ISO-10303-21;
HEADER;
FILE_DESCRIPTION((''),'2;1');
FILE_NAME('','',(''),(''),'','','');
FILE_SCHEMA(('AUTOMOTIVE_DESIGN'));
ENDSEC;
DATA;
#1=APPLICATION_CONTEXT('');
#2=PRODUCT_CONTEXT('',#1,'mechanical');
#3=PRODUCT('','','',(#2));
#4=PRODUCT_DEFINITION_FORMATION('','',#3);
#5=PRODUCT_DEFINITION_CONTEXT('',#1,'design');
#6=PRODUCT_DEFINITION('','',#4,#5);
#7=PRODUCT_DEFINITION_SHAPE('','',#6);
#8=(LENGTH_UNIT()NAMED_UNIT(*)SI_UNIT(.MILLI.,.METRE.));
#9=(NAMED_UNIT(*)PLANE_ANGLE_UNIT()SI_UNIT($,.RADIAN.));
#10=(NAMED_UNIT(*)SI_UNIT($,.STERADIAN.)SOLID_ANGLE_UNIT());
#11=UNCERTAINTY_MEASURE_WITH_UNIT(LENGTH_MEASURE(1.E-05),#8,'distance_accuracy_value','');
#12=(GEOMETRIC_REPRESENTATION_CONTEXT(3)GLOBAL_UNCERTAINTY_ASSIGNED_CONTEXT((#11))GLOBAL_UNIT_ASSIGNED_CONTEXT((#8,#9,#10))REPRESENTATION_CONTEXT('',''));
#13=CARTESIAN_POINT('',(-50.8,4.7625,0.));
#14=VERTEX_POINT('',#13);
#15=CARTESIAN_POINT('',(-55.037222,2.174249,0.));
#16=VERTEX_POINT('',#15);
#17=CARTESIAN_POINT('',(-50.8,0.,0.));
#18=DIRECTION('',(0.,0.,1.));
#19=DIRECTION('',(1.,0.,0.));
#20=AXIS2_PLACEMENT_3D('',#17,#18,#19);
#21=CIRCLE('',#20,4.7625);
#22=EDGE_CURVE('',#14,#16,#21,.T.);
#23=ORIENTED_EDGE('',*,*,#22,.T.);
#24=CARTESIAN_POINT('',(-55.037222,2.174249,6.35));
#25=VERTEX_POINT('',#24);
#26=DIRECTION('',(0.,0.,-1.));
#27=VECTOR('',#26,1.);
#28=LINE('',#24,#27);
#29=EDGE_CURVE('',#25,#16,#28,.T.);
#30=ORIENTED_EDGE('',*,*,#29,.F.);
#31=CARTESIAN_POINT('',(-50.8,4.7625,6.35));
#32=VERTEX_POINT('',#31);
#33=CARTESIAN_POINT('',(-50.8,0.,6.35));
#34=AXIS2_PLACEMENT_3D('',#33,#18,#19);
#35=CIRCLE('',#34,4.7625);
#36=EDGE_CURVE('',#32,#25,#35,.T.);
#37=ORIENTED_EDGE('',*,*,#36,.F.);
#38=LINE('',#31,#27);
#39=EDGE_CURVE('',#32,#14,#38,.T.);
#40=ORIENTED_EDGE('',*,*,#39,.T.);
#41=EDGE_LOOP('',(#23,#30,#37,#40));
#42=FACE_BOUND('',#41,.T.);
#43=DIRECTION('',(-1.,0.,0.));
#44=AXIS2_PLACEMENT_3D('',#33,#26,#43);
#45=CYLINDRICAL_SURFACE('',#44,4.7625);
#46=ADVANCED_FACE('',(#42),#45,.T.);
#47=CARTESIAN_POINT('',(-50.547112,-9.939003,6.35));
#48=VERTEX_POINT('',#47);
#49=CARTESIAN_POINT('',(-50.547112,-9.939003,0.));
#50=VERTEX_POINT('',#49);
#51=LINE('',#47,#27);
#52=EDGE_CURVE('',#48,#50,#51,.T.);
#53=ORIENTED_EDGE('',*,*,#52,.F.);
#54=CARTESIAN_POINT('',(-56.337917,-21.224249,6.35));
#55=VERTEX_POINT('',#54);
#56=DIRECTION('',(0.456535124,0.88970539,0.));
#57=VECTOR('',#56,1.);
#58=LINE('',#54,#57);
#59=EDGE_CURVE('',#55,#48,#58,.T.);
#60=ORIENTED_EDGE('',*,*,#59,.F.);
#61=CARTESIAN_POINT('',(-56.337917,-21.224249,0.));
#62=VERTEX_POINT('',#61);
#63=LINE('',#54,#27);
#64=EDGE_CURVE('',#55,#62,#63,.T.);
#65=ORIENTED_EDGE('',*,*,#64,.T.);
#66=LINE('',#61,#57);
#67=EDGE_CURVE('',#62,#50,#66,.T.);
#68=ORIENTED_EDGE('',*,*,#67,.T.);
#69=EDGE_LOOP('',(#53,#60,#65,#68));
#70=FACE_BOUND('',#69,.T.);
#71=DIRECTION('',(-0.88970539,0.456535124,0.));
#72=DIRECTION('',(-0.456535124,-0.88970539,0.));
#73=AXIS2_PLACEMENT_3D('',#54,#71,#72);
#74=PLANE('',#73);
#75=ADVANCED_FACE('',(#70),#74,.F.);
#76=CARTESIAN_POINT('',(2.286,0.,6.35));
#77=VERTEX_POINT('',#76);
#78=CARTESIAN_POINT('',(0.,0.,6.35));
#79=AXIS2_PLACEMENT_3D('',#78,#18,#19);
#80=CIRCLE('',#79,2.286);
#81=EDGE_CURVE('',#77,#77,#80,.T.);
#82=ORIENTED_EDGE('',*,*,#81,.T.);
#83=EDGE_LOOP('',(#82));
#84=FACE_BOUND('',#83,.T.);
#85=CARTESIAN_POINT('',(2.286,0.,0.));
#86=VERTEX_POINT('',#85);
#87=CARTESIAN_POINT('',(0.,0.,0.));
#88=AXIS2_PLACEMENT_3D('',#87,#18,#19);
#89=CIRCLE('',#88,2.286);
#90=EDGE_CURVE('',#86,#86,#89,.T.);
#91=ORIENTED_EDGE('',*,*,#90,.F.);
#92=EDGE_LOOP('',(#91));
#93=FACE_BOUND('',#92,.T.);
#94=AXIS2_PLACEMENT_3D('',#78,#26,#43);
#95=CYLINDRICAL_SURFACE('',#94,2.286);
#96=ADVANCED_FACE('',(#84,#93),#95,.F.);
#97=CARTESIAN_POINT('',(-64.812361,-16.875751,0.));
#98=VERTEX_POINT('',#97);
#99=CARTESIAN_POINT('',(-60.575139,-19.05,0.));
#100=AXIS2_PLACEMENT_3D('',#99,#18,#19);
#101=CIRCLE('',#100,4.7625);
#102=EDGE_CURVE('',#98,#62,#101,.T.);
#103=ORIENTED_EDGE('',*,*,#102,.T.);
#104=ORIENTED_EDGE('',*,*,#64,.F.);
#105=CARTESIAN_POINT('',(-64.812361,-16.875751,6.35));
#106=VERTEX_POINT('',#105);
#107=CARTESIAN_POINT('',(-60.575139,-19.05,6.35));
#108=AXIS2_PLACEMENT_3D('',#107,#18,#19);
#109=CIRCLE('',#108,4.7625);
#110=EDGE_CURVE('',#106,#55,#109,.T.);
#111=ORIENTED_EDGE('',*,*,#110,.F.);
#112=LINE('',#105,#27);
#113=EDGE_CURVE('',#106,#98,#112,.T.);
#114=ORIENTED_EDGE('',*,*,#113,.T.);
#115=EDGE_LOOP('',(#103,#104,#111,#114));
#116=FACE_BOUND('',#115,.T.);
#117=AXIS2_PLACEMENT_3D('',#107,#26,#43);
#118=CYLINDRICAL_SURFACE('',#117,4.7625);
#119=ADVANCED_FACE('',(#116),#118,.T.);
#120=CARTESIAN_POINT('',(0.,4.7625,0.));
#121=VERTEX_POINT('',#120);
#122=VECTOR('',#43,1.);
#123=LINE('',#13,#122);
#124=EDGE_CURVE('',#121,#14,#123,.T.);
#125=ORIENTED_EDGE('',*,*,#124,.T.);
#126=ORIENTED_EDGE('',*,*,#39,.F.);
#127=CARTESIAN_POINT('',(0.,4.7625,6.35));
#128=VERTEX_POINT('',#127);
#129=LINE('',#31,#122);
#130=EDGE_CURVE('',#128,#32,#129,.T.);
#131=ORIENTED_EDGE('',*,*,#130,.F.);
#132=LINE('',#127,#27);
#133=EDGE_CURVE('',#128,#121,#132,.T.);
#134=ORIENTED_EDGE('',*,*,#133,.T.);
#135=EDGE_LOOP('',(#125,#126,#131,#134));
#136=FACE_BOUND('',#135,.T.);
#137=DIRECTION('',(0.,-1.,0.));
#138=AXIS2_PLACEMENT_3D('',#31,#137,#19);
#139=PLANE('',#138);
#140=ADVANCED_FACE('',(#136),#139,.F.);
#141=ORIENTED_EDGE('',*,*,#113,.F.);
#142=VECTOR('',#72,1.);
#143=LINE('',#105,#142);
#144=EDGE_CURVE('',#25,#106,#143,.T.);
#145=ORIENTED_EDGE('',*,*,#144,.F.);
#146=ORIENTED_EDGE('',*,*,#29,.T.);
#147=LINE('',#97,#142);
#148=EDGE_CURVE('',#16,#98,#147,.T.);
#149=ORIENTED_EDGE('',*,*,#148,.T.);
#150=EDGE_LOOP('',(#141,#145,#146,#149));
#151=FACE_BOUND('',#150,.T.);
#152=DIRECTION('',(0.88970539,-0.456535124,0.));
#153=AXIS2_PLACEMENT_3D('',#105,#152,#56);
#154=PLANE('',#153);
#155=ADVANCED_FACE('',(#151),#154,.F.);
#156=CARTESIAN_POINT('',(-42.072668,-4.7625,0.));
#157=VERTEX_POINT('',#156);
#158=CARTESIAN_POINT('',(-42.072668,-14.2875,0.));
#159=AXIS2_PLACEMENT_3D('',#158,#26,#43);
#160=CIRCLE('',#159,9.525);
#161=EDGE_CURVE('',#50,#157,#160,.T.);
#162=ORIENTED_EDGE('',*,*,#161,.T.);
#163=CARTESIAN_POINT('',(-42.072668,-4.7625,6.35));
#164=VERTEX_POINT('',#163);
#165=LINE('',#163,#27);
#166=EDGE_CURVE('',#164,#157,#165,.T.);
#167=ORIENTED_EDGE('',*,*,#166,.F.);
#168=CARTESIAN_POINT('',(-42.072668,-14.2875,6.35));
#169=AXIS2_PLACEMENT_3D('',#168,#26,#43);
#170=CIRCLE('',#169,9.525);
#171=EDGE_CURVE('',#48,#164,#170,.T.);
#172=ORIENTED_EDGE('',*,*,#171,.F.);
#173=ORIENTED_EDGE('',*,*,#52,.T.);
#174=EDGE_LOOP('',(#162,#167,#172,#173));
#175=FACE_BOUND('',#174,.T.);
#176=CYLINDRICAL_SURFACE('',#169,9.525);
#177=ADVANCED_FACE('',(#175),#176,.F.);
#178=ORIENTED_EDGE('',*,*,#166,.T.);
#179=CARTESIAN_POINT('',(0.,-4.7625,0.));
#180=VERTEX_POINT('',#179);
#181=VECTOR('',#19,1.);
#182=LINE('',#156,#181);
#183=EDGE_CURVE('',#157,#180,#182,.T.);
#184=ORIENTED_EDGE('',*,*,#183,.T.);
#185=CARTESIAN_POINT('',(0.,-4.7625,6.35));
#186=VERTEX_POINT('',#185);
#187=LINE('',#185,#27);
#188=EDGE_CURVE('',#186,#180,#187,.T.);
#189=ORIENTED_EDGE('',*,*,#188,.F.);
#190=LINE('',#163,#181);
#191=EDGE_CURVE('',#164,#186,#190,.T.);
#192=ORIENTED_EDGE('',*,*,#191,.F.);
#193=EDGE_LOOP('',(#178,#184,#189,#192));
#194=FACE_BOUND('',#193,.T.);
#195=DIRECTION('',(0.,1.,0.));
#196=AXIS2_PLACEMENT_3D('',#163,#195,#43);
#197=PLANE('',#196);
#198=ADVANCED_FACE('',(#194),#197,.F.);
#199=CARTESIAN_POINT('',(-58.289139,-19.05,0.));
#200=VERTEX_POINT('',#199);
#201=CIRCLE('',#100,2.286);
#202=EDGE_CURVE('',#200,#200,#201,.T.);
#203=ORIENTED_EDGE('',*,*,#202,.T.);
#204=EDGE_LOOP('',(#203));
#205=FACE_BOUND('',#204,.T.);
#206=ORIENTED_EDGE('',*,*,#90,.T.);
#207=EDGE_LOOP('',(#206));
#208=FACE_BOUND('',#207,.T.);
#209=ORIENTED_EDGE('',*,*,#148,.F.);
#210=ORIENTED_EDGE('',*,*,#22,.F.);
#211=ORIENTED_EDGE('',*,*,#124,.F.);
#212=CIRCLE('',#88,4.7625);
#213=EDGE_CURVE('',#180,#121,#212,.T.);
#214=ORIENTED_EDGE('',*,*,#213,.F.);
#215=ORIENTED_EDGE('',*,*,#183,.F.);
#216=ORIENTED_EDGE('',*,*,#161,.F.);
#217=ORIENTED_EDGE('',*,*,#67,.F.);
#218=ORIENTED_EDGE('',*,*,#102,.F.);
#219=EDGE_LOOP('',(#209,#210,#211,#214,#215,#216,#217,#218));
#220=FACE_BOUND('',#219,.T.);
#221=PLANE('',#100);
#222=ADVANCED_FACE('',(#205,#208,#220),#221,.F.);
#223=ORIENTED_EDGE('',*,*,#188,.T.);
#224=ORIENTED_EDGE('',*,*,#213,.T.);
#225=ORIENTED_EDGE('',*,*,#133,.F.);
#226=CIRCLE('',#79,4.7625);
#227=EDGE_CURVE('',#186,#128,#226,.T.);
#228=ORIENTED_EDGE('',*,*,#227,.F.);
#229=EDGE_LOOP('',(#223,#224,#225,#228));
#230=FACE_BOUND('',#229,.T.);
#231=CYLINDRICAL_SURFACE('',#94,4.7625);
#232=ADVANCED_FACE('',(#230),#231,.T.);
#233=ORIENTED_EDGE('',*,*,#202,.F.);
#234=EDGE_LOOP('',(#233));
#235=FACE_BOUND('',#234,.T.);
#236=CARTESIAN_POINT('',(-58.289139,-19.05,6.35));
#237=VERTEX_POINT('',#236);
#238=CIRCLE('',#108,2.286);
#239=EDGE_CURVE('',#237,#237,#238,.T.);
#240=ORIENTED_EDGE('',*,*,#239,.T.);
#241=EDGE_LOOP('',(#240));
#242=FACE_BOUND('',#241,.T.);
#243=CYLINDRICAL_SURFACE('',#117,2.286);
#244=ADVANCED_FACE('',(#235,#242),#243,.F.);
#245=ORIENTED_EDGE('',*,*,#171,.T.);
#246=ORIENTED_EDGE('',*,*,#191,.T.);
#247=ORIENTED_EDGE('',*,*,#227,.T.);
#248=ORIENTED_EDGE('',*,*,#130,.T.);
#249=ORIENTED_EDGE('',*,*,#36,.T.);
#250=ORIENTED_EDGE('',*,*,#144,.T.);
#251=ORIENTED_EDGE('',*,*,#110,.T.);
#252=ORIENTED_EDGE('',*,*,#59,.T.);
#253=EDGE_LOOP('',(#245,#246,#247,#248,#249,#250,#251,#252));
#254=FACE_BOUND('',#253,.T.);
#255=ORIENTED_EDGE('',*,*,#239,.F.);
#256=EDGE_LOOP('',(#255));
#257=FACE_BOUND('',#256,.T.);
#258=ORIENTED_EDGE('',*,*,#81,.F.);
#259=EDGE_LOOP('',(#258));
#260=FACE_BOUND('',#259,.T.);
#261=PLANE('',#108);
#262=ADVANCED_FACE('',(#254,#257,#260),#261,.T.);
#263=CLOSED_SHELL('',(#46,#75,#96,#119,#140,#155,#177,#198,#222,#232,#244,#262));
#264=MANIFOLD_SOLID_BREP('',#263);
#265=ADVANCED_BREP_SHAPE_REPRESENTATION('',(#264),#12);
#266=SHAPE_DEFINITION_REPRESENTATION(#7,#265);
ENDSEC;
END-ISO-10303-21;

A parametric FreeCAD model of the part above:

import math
import FreeCAD as App
import Part
import Sketcher

V = App.Vector
Q = App.Units.Quantity

doc = App.newDocument("Part")
body = doc.addObject("PartDesign::Body", "Body")

sketch1 = body.newObject("Sketcher::SketchObject", "Sketch")
sketch1.AttachmentSupport = (doc.getObject("XY_Plane"), [""])
sketch1.MapMode = "FlatFace"
sketch1.addGeometry(Part.LineSegment(V(-55, 2.2, 0), V(-64.8, -16.9, 0)), False)
sketch1.addGeometry(Part.ArcOfCircle(Part.Circle(V(-60.6, -19.1, 0), V(0, 0, 1), 4.8), math.radians(153), math.radians(333)), False)
sketch1.addGeometry(Part.LineSegment(V(-56.3, -21.2, 0), V(-50.5, -9.9, 0)), False)
sketch1.addGeometry(Part.ArcOfCircle(Part.Circle(V(-42.1, -14.3, 0), V(0, 0, 1), 9.5), math.radians(90), math.radians(153)), False)
sketch1.addGeometry(Part.LineSegment(V(-42.1, -4.8, 0), V(0, -4.8, 0)), False)
sketch1.addGeometry(Part.ArcOfCircle(Part.Circle(V(0, 0, 0), V(0, 0, 1), 4.8), math.radians(-90), math.radians(90)), False)
sketch1.addGeometry(Part.LineSegment(V(0, 4.8, 0), V(-50.8, 4.8, 0)), False)
sketch1.addGeometry(Part.ArcOfCircle(Part.Circle(V(-50.8, 0, 0), V(0, 0, 1), 4.8), math.radians(90), math.radians(153)), False)
sketch1.addGeometry(Part.Circle(V(-60.6, -19.1, 0), V(0, 0, 1), 2.3), False)
sketch1.addGeometry(Part.Circle(V(0, 0, 0), V(0, 0, 1), 2.3), False)
sketch1.addConstraint(Sketcher.Constraint("Tangent", 0, 2, 1, 1))
sketch1.addConstraint(Sketcher.Constraint("Tangent", 1, 2, 2, 1))
sketch1.addConstraint(Sketcher.Constraint("Tangent", 2, 2, 3, 2))
sketch1.addConstraint(Sketcher.Constraint("Tangent", 3, 1, 4, 1))
sketch1.addConstraint(Sketcher.Constraint("Tangent", 4, 2, 5, 1))
sketch1.addConstraint(Sketcher.Constraint("Tangent", 5, 2, 6, 1))
sketch1.addConstraint(Sketcher.Constraint("Tangent", 6, 2, 7, 1))
sketch1.addConstraint(Sketcher.Constraint("Tangent", 7, 2, 0, 1))
sketch1.addConstraint(Sketcher.Constraint("Horizontal", 4))
sketch1.addConstraint(Sketcher.Constraint("Horizontal", 6))
sketch1.addConstraint(Sketcher.Constraint("Coincident", 5, 3, -1, 1))
sketch1.addConstraint(Sketcher.Constraint("Coincident", 9, 3, -1, 1))
sketch1.addConstraint(Sketcher.Constraint("Coincident", 8, 3, 1, 3))
sketch1.addConstraint(Sketcher.Constraint("Equal", 1, 5))
sketch1.addConstraint(Sketcher.Constraint("Equal", 5, 7))
sketch1.addConstraint(Sketcher.Constraint("Equal", 8, 9))
sketch1.addConstraint(Sketcher.Constraint("Parallel", 0, 2))
sketch1.addConstraint(Sketcher.Constraint("Diameter", 8, Q("0.18 in")))
sketch1.addConstraint(Sketcher.Constraint("DistanceX", 6, 2, 6, 1, Q("2 in")))
sketch1.addConstraint(Sketcher.Constraint("Radius", 1, Q("0.1875 in")))
sketch1.addConstraint(Sketcher.Constraint("Radius", 3, Q("0.375 in")))
sketch1.addConstraint(Sketcher.Constraint("DistanceY", 1, 3, -1, 1, Q("0.75 in")))
sketch1.addConstraint(Sketcher.Constraint("Distance", 2, 12.68425))
pad1 = body.newObject("PartDesign::Pad", "Pad")
pad1.Profile = sketch1
pad1.Length = Q("0.25 in")

doc.recompute()
